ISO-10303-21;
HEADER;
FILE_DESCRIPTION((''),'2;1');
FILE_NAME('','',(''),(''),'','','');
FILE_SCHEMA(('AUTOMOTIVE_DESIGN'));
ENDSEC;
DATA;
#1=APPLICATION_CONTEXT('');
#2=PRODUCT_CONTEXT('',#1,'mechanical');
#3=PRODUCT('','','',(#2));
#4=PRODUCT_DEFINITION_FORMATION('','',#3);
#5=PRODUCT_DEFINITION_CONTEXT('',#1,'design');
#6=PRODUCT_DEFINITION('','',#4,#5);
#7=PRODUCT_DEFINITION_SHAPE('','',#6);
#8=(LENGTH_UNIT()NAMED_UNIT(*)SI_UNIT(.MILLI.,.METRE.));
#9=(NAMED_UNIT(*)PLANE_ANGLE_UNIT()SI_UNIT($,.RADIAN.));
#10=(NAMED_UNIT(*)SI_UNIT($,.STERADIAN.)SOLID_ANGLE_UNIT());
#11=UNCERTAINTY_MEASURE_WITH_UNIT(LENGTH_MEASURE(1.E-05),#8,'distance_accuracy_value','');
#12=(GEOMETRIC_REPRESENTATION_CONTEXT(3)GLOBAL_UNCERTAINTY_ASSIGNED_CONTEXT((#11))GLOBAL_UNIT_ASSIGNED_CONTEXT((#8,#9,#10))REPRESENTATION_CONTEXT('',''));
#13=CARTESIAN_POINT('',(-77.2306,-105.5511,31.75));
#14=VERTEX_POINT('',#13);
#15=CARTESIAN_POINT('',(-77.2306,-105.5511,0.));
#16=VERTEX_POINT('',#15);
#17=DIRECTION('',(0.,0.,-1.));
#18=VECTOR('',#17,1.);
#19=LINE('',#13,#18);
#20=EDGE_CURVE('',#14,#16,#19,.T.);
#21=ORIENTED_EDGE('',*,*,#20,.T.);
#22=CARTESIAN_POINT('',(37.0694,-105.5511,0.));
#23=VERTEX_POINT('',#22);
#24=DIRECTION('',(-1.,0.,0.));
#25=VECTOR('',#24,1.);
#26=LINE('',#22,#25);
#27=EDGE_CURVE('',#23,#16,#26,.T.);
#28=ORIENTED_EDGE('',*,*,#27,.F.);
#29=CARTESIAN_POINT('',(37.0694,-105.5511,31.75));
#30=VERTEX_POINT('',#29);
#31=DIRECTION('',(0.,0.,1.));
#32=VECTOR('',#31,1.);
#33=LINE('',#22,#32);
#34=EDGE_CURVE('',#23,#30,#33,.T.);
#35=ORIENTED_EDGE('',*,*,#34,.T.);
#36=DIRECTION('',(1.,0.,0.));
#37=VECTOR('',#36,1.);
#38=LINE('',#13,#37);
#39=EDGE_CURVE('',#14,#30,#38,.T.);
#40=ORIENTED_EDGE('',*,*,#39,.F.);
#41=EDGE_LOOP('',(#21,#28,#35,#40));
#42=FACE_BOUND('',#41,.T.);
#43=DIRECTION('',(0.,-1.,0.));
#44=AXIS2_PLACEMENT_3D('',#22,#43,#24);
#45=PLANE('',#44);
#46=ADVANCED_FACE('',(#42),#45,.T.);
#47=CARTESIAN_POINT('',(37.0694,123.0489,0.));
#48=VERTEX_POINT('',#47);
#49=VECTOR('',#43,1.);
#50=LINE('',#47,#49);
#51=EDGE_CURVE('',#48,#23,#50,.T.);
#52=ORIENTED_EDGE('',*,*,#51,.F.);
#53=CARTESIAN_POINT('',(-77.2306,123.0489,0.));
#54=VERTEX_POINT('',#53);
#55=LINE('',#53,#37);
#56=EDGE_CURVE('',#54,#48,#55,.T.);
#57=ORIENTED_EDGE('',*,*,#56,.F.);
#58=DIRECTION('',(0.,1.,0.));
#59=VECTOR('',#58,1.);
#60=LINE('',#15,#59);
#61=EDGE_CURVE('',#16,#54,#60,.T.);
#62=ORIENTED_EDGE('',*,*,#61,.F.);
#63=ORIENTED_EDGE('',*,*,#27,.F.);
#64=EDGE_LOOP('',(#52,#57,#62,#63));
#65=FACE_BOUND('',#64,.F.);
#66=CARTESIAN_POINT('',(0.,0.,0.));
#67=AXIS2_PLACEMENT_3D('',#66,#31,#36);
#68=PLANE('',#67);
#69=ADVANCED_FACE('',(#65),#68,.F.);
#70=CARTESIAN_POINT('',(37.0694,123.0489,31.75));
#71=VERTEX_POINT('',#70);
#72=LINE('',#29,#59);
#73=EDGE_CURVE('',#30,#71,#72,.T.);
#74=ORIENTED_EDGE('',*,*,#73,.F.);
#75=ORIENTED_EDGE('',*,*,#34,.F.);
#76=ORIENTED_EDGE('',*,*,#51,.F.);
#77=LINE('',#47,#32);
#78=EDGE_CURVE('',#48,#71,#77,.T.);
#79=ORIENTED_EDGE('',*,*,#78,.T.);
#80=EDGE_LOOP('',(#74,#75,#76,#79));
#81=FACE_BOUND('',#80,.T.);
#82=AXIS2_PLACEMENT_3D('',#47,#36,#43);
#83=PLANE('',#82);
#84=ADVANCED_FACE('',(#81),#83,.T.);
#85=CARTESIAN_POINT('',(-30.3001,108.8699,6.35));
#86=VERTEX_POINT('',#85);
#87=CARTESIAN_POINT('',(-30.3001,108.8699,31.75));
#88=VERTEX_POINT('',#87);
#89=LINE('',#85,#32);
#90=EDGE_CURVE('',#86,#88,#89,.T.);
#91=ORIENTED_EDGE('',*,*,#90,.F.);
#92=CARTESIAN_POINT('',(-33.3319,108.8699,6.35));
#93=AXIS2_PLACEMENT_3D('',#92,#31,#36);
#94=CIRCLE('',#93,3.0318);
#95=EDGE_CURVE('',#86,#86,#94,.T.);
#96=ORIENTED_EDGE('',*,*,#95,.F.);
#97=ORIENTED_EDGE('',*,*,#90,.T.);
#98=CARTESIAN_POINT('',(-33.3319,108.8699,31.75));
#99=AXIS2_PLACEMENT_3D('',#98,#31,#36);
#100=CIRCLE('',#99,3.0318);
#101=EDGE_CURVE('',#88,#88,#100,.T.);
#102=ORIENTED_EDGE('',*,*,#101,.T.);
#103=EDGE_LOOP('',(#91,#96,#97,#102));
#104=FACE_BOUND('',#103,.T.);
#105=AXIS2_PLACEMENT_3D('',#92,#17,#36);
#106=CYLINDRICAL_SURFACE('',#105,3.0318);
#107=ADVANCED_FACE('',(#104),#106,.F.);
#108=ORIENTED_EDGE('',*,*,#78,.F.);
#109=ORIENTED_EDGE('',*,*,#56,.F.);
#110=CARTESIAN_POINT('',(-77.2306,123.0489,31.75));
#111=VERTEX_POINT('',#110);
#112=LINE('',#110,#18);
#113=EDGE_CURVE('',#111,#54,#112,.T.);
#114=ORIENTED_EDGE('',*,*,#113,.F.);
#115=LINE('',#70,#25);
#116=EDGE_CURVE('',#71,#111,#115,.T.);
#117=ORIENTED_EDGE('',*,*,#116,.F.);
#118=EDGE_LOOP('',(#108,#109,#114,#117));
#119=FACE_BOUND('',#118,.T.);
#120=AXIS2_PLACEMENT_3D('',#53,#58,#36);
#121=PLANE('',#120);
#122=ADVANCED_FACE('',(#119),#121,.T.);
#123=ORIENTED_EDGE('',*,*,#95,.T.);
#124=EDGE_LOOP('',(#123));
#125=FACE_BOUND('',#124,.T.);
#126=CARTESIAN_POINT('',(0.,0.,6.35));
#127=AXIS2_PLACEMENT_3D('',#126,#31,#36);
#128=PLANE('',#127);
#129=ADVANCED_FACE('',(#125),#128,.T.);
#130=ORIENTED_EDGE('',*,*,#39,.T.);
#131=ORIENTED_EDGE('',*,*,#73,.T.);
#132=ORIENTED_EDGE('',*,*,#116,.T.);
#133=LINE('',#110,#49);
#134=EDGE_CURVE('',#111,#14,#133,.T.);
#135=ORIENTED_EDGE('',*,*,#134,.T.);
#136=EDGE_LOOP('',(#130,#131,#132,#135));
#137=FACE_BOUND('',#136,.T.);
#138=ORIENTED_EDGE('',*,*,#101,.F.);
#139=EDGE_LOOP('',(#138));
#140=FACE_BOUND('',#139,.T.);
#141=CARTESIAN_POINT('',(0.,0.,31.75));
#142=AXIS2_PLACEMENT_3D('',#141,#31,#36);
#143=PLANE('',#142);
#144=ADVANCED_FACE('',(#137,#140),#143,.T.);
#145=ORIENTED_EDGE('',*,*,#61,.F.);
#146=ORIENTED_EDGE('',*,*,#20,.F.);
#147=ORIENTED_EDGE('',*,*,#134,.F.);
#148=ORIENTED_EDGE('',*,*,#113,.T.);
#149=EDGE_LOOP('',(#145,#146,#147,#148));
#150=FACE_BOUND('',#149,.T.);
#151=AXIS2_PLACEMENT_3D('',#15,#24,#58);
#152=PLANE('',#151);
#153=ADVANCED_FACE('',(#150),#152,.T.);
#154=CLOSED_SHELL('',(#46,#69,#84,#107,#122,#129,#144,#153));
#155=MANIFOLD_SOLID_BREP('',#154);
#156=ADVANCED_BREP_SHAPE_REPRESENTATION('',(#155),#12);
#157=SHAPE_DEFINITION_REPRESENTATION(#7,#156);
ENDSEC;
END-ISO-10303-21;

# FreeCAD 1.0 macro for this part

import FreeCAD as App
import Part
import Sketcher
Q = App.Units.Quantity

doc = App.newDocument("Part")
params = doc.addObject("Spreadsheet::Sheet", "Params")
for row, (alias, value) in enumerate([
    ("sketch1_height", "9 in"),
    ("sketch1_width", "4.5 in"),
    ("pad1_length", "0.25 in"),
    ("sketch2_height", "9 in"),
    ("sketch2_width", "4.5 in"),
    ("pad2_length", "1 in"),
], start=1):
    params.set(f"A{row}", alias)
    params.set(f"B{row}", "=" + value)
    params.setAlias(f"B{row}", alias)

body = doc.addObject("PartDesign::Body", "Body")

# Sketch on XY plane
sketch1 = body.newObject("Sketcher::SketchObject", "Sketch")
sketch1.AttachmentSupport = (doc.getObject("XY_Plane"), [""])
sketch1.MapMode = "FlatFace"
sketch1.addGeometry([
    Part.LineSegment(App.Vector(-77.2306, -105.5511, 0), App.Vector(37.0694, -105.5511, 0)),
    Part.LineSegment(App.Vector(37.0694, -105.5511, 0), App.Vector(37.0694, 123.0489, 0)),
    Part.LineSegment(App.Vector(37.0694, 123.0489, 0), App.Vector(-77.2306, 123.0489, 0)),
    Part.LineSegment(App.Vector(-77.2306, 123.0489, 0), App.Vector(-77.2306, -105.5511, 0)),
], False)
sketch1.addConstraint([
    Sketcher.Constraint("Coincident", 0, 2, 1, 1),
    Sketcher.Constraint("Coincident", 1, 2, 2, 1),
    Sketcher.Constraint("Coincident", 2, 2, 3, 1),
    Sketcher.Constraint("Coincident", 3, 2, 0, 1),
    Sketcher.Constraint("Horizontal", 0),
    Sketcher.Constraint("Vertical", 1),
    Sketcher.Constraint("Horizontal", 2),
    Sketcher.Constraint("Vertical", 3),
    Sketcher.Constraint("DistanceY", 1, 1, 1, 2, Q("9 in")),
    Sketcher.Constraint("DistanceX", 0, 1, 0, 2, Q("4.5 in")),
    Sketcher.Constraint("DistanceX", -1, 1, 0, 2, Q("37.0694 mm")),
    Sketcher.Constraint("DistanceY", 0, 2, -1, 1, Q("105.551 mm")),
])
sketch1.setExpression("Constraints[8]", "Params.sketch1_height")
sketch1.setExpression("Constraints[9]", "Params.sketch1_width")
pad1 = body.newObject("PartDesign::Pad", "Pad")
pad1.Profile = sketch1
pad1.setExpression("Length", "Params.pad1_length")

# Sketch on XY plane
sketch2 = body.newObject("Sketcher::SketchObject", "Sketch001")
sketch2.AttachmentSupport = (doc.getObject("XY_Plane"), [""])
sketch2.MapMode = "FlatFace"
sketch2.AttachmentOffset = App.Placement(App.Vector(0, 0, 0.25 * 25.4), App.Rotation())
sketch2.addGeometry([
    Part.LineSegment(App.Vector(-77.2306, 123.0489, 0), App.Vector(-77.2306, -105.5511, 0)),  # 0
    Part.LineSegment(App.Vector(-77.2306, -105.5511, 0), App.Vector(37.0694, -105.5511, 0)),  # 1
    Part.LineSegment(App.Vector(37.0694, -105.5511, 0), App.Vector(37.0694, 123.0489, 0)),  # 2
    Part.LineSegment(App.Vector(37.0694, 123.0489, 0), App.Vector(-77.2306, 123.0489, 0)),  # 3
    Part.Circle(App.Vector(-33.3319, 108.8699, 0), App.Vector(0, 0, 1), 3.0318),  # 4
], False)
sketch2.addConstraint([
    Sketcher.Constraint("Coincident", 0, 2, 1, 1),
    Sketcher.Constraint("Coincident", 1, 2, 2, 1),
    Sketcher.Constraint("Coincident", 2, 2, 3, 1),
    Sketcher.Constraint("Coincident", 3, 2, 0, 1),
    Sketcher.Constraint("Vertical", 0),
    Sketcher.Constraint("Horizontal", 1),
    Sketcher.Constraint("Vertical", 2),
    Sketcher.Constraint("Horizontal", 3),
    Sketcher.Constraint("DistanceY", 0, 2, 0, 1, Q("9 in")),
    Sketcher.Constraint("DistanceX", 1, 1, 1, 2, Q("4.5 in")),
    Sketcher.Constraint("Diameter", 4, Q("6.0636 mm")),
    Sketcher.Constraint("DistanceX", 0, 2, 4, 3, Q("1.7283 in")),
    Sketcher.Constraint("DistanceX", 4, 3, -1, 1, Q("33.332 mm")),
    Sketcher.Constraint("DistanceY", -1, 1, 4, 3, Q("108.87 mm")),
    Sketcher.Constraint("DistanceY", 0, 2, -1, 1, Q("105.551 mm")),
])
sketch2.setExpression("Constraints[8]", "Params.sketch2_height")
sketch2.setExpression("Constraints[9]", "Params.sketch2_width")
pad2 = body.newObject("PartDesign::Pad", "Pad001")
pad2.Profile = sketch2
pad2.setExpression("Length", "Params.pad2_length")

doc.recompute()
